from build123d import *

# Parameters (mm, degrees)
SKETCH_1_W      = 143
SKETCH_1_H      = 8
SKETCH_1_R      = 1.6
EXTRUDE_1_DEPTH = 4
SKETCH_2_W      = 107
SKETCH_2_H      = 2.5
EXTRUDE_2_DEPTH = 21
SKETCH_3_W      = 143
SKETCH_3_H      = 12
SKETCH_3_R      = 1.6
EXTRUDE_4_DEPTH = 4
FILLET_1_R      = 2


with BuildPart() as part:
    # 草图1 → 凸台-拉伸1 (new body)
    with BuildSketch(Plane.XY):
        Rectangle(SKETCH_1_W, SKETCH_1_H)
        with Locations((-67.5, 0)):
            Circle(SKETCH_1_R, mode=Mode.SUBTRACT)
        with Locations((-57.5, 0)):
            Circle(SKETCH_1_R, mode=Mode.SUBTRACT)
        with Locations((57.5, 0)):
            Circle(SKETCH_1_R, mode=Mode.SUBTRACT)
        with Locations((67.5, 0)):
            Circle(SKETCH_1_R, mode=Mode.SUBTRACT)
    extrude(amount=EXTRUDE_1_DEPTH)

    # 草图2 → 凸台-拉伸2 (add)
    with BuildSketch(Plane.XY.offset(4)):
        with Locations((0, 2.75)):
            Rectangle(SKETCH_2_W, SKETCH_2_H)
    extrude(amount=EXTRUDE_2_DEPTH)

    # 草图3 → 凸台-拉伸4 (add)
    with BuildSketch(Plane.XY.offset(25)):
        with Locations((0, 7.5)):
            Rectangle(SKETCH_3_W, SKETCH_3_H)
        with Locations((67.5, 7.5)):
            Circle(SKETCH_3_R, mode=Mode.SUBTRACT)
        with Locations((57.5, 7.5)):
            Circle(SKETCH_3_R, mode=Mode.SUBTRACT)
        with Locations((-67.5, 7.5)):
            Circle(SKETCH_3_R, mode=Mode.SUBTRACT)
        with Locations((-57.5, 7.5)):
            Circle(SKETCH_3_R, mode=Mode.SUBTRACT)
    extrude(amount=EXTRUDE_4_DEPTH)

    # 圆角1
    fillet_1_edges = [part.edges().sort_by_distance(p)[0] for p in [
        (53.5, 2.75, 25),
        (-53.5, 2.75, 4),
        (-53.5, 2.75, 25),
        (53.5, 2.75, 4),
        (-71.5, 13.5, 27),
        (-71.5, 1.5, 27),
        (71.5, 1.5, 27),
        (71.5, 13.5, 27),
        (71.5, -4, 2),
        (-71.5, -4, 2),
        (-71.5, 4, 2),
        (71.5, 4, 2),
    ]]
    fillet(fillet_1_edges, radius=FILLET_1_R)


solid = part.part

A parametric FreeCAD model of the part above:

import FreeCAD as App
import Part
import Sketcher
from FreeCAD import Vector


def edges_at(feature, points):
    """Names of the edges that pass closest to the given points."""
    edges = feature.Shape.Edges
    near = lambda p: min(range(len(edges)), key=lambda i: edges[i].distToShape(Part.Vertex(*p))[0])
    return sorted({f"Edge{near(p) + 1}" for p in points})


def add_polygon(sketch, points):
    """Adds a closed chain of lines whose ends are joined by coincident constraints."""
    first, n = sketch.GeometryCount, len(points)
    for a, b in zip(points, points[1:] + points[:1]):
        sketch.addGeometry(Part.LineSegment(App.Vector(*a, 0), App.Vector(*b, 0)), False)
    for i in range(n):
        sketch.addConstraint(Sketcher.Constraint("Coincident", first + i, 2, first + (i + 1) % n, 1))

doc = App.newDocument("Part")
body = doc.addObject("PartDesign::Body", "Body")

# Sketch on XY plane
sketch1 = doc.addObject("Sketcher::SketchObject", "Sketch")
body.addObject(sketch1)
sketch1.AttachmentSupport = (doc.XY_Plane, [""])
sketch1.MapMode = "FlatFace"
add_polygon(sketch1, [(-71.5, 4), (-71.5, -4), (71.5, -4), (71.5, 4)])  # lines 0-3
sketch1.addGeometry(Part.Circle(Vector(-67.5, 0, 0), Vector(0, 0, 1), 1.6), False)  # 4
sketch1.addGeometry(Part.Circle(Vector(-57.5, 0, 0), Vector(0, 0, 1), 1.6), False)  # 5
sketch1.addGeometry(Part.Circle(Vector(57.5, 0, 0), Vector(0, 0, 1), 1.6), False)  # 6
sketch1.addGeometry(Part.Circle(Vector(67.5, 0, 0), Vector(0, 0, 1), 1.6), False)  # 7
sketch1.addConstraint([
    Sketcher.Constraint("Vertical", 0),
    Sketcher.Constraint("Horizontal", 1),
    Sketcher.Constraint("Vertical", 2),
    Sketcher.Constraint("Horizontal", 3),
    Sketcher.Constraint("Equal", 4, 5),
    Sketcher.Constraint("Equal", 5, 6),
    Sketcher.Constraint("Equal", 6, 7),
    Sketcher.Constraint("Symmetric", 5, 3, 6, 3, -1, 1),
    Sketcher.Constraint("Symmetric", 4, 3, 7, 3, -1, 1),
    Sketcher.Constraint("Symmetric", 0, 2, 2, 2, -1, 1),
    Sketcher.Constraint("PointOnObject", 4, 3, -1),
    Sketcher.Constraint("PointOnObject", 5, 3, -1),
    Sketcher.Constraint("Diameter", 4, 3.2),
    Sketcher.Constraint("DistanceX", 1, 1, 1, 2, 143.0),
    Sketcher.Constraint("DistanceY", 0, 2, 0, 1, 8.0),
    Sketcher.Constraint("DistanceX", 4, 3, 5, 3, 10.0),
    Sketcher.Constraint("DistanceX", 5, 3, 6, 3, 115.0),
])
pad1 = doc.addObject("PartDesign::Pad", "Pad")
body.addObject(pad1)
pad1.Profile = sketch1
pad1.Length = 4

# Sketch on XY plane
sketch2 = doc.addObject("Sketcher::SketchObject", "Sketch001")
body.addObject(sketch2)
sketch2.AttachmentSupport = (doc.XY_Plane, [""])
sketch2.MapMode = "FlatFace"
sketch2.AttachmentOffset = App.Placement(Vector(0, 0, 4), App.Rotation())
add_polygon(sketch2, [(-53.5, 4), (-53.5, 1.5), (53.5, 1.5), (53.5, 4)])  # lines 0-3
sketch2.addConstraint([
    Sketcher.Constraint("Vertical", 0),
    Sketcher.Constraint("Horizontal", 1),
    Sketcher.Constraint("Vertical", 2),
    Sketcher.Constraint("Horizontal", 3),
    Sketcher.Constraint("DistanceX", 1, 1, 1, 2, 107.0),
    Sketcher.Constraint("DistanceY", 0, 2, 0, 1, 2.5),
    Sketcher.Constraint("DistanceY", -1, 1, 2, 2, 4.0),
    Sketcher.Constraint("DistanceX", 0, 2, -1, 1, 53.5),
])
pad2 = doc.addObject("PartDesign::Pad", "Pad001")
body.addObject(pad2)
pad2.Profile = sketch2
pad2.Length = 21

# Sketch on XY plane
sketch3 = doc.addObject("Sketcher::SketchObject", "Sketch002")
body.addObject(sketch3)
sketch3.AttachmentSupport = (doc.XY_Plane, [""])
sketch3.MapMode = "FlatFace"
sketch3.AttachmentOffset = App.Placement(Vector(0, 0, 25), App.Rotation())
add_polygon(sketch3, [(-71.5, 13.5), (-71.5, 1.5), (71.5, 1.5), (71.5, 13.5)])  # lines 0-3
sketch3.addGeometry(Part.Circle(Vector(-67.5, 7.5, 0), Vector(0, 0, 1), 1.6), False)  # 4
sketch3.addGeometry(Part.Circle(Vector(-57.5, 7.5, 0), Vector(0, 0, 1), 1.6), False)  # 5
sketch3.addGeometry(Part.Circle(Vector(57.5, 7.5, 0), Vector(0, 0, 1), 1.6), False)  # 6
sketch3.addGeometry(Part.Circle(Vector(67.5, 7.5, 0), Vector(0, 0, 1), 1.6), False)  # 7
sketch3.addConstraint([
    Sketcher.Constraint("Vertical", 0),
    Sketcher.Constraint("Horizontal", 1),
    Sketcher.Constraint("Vertical", 2),
    Sketcher.Constraint("Horizontal", 3),
    Sketcher.Constraint("Equal", 4, 5),
    Sketcher.Constraint("Equal", 5, 6),
    Sketcher.Constraint("Equal", 6, 7),
    Sketcher.Constraint("Symmetric", 5, 3, 6, 3, -2),
    Sketcher.Constraint("Symmetric", 4, 3, 7, 3, -2),
    Sketcher.Constraint("Horizontal", 4, 3, 5, 3),
    Sketcher.Constraint("Diameter", 4, 3.2),
    Sketcher.Constraint("DistanceX", 1, 1, 1, 2, 143.0),
    Sketcher.Constraint("DistanceY", 0, 2, 0, 1, 12.0),
    Sketcher.Constraint("DistanceX", 4, 3, 5, 3, 10.0),
    Sketcher.Constraint("DistanceX", 5, 3, 6, 3, 115.0),
    Sketcher.Constraint("DistanceX", 0, 2, 4, 3, 4.0),
    Sketcher.Constraint("DistanceY", 0, 2, 4, 3, 6.0),
    Sketcher.Constraint("DistanceY", -1, 1, 4, 3, 7.5),
])
pad3 = doc.addObject("PartDesign::Pad", "Pad002")
body.addObject(pad3)
pad3.Profile = sketch3
pad3.Length = 4
doc.recompute()

fillet = doc.addObject("PartDesign::Fillet", "Fillet")
body.addObject(fillet)
fillet.Base = (pad3, edges_at(pad3, [
    (53.5, 2.75, 25),
    (-53.5, 2.75, 4),
    (-53.5, 2.75, 25),
    (53.5, 2.75, 4),
    (-71.5, 13.5, 27),
    (-71.5, 1.5, 27),
    (71.5, 1.5, 27),
    (71.5, 13.5, 27),
    (71.5, -4, 2),
    (-71.5, -4, 2),
    (-71.5, 4, 2),
    (71.5, 4, 2),
]))
fillet.Radius = 2

doc.recompute()
